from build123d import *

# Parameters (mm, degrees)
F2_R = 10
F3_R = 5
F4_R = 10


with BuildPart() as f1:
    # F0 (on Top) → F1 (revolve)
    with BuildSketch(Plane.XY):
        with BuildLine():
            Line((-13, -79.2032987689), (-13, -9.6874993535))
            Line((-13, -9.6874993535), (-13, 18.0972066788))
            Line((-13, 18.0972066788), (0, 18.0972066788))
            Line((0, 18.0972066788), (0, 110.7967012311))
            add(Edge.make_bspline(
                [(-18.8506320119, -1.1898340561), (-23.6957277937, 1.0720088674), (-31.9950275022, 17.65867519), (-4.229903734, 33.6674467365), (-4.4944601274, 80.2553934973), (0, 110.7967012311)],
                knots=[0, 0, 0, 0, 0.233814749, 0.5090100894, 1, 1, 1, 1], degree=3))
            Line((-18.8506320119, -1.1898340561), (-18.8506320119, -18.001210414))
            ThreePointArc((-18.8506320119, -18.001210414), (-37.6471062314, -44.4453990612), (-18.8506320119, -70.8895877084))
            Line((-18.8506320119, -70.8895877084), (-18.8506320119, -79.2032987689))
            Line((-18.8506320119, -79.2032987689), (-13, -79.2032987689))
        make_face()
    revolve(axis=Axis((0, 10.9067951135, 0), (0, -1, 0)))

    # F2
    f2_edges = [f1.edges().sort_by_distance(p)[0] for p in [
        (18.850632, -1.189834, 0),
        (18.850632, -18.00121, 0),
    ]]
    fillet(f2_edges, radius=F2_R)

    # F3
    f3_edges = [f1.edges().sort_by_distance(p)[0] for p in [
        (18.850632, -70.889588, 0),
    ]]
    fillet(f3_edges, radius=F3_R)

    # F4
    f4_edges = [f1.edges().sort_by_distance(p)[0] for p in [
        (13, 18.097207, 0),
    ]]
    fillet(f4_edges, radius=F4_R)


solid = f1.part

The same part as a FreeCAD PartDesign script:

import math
import FreeCAD as App
import Part
import Sketcher
Q = App.Units.Quantity


def edges_at(feature, points):
    """Names of the edges that pass closest to the given points."""
    edges = feature.Shape.Edges
    near = lambda p: min(range(len(edges)), key=lambda i: edges[i].distToShape(Part.Vertex(*p))[0])
    return sorted({f"Edge{near(p) + 1}" for p in points})

doc = App.newDocument("Part")
body = doc.addObject("PartDesign::Body", "Body")

sketch1 = doc.addObject("Sketcher::SketchObject", "Sketch")
body.addObject(sketch1)
sketch1.AttachmentSupport = (doc.XY_Plane, [""])
sketch1.MapMode = "FlatFace"
sketch1.addGeometry(Part.LineSegment(App.Vector(-13, -79.203299, 0), App.Vector(-13, 18.097207, 0)), False)
sketch1.addGeometry(Part.LineSegment(App.Vector(-13, 18.097207, 0), App.Vector(0, 18.097207, 0)), False)
sketch1.addGeometry(Part.LineSegment(App.Vector(0, 18.097207, 0), App.Vector(0, 110.796701, 0)), False)
sketch1.addGeometry(Part.BSplineCurve([App.Vector(-18.850632, -1.189834, 0), App.Vector(-23.695728, 1.072009, 0), App.Vector(-31.995028, 17.658675, 0), App.Vector(-4.229904, 33.667447, 0), App.Vector(-4.49446, 80.255393, 0), App.Vector(0, 110.796701, 0)], [4, 1, 1, 4], [0, 0.233814749, 0.509010089, 1], False, 3, [1, 1, 1, 1, 1, 1], False), False)
sketch1.addGeometry(Part.LineSegment(App.Vector(-18.850632, -1.189834, 0), App.Vector(-18.850632, -18.00121, 0)), False)
sketch1.addGeometry(Part.ArcOfCircle(Part.Circle(App.Vector(-9.647106, -44.445399, 0), App.Vector(0, 0, 1), 28), math.radians(109.189729), math.radians(250.810271)), False)
sketch1.addGeometry(Part.LineSegment(App.Vector(-18.850632, -70.889588, 0), App.Vector(-18.850632, -79.203299, 0)), False)
sketch1.addGeometry(Part.LineSegment(App.Vector(-18.850632, -79.203299, 0), App.Vector(-13, -79.203299, 0)), False)
sketch1.addConstraint(Sketcher.Constraint("Block", 3))
sketch1.addConstraint(Sketcher.Constraint("Coincident", 0, 2, 1, 1))
sketch1.addConstraint(Sketcher.Constraint("Coincident", 1, 2, 2, 1))
sketch1.addConstraint(Sketcher.Constraint("Coincident", 2, 2, 3, 2))
sketch1.addConstraint(Sketcher.Constraint("Coincident", 3, 1, 4, 1))
sketch1.addConstraint(Sketcher.Constraint("Coincident", 4, 2, 5, 1))
sketch1.addConstraint(Sketcher.Constraint("Coincident", 5, 2, 6, 1))
sketch1.addConstraint(Sketcher.Constraint("Coincident", 6, 2, 7, 1))
sketch1.addConstraint(Sketcher.Constraint("Coincident", 7, 2, 0, 1))
sketch1.addConstraint(Sketcher.Constraint("Vertical", 0))
sketch1.addConstraint(Sketcher.Constraint("Horizontal", 1))
sketch1.addConstraint(Sketcher.Constraint("Vertical", 2))
sketch1.addConstraint(Sketcher.Constraint("Vertical", 4))
sketch1.addConstraint(Sketcher.Constraint("Vertical", 6))
sketch1.addConstraint(Sketcher.Constraint("Horizontal", 7))
sketch1.addConstraint(Sketcher.Constraint("Vertical", 4, 2, 5, 2))
sketch1.addConstraint(Sketcher.Constraint("Radius", 5, Q("28 mm")))
sketch1.addConstraint(Sketcher.Constraint("DistanceX", 1, 1, 1, 2, Q("13 mm")))
sketch1.addConstraint(Sketcher.Constraint("DistanceY", 6, 2, 6, 1, Q("8.313711 mm")))
sketch1.addConstraint(Sketcher.Constraint("DistanceY", 5, 3, -1, 1, Q("44.445399 mm")))
sketch1.addConstraint(Sketcher.Constraint("DistanceY", 6, 2, -1, 1, Q("79.203299 mm")))
sketch1.addConstraint(Sketcher.Constraint("DistanceY", 0, 1, 0, 2, Q("97.300505 mm")))
revolution = doc.addObject("PartDesign::Revolution", "Revolution")
body.addObject(revolution)
revolution.Profile = sketch1
revolution.ReferenceAxis = (sketch1, ["V_Axis"])
revolution.Angle = 360
doc.recompute()

fillet = doc.addObject("PartDesign::Fillet", "Fillet")
body.addObject(fillet)
fillet.Base = (revolution, edges_at(revolution, [(18.851, -1.19, 0), (18.851, -18.001, 0)]))
fillet.Radius = 10
doc.recompute()

fillet2 = doc.addObject("PartDesign::Fillet", "Fillet001")
body.addObject(fillet2)
fillet2.Base = (fillet, edges_at(fillet, [(18.851, -70.89, 0)]))
fillet2.Radius = 5
doc.recompute()

fillet3 = doc.addObject("PartDesign::Fillet", "Fillet002")
body.addObject(fillet3)
fillet3.Base = (fillet2, edges_at(fillet2, [(13, 18.097, 0)]))
fillet3.Radius = 10

doc.recompute()
